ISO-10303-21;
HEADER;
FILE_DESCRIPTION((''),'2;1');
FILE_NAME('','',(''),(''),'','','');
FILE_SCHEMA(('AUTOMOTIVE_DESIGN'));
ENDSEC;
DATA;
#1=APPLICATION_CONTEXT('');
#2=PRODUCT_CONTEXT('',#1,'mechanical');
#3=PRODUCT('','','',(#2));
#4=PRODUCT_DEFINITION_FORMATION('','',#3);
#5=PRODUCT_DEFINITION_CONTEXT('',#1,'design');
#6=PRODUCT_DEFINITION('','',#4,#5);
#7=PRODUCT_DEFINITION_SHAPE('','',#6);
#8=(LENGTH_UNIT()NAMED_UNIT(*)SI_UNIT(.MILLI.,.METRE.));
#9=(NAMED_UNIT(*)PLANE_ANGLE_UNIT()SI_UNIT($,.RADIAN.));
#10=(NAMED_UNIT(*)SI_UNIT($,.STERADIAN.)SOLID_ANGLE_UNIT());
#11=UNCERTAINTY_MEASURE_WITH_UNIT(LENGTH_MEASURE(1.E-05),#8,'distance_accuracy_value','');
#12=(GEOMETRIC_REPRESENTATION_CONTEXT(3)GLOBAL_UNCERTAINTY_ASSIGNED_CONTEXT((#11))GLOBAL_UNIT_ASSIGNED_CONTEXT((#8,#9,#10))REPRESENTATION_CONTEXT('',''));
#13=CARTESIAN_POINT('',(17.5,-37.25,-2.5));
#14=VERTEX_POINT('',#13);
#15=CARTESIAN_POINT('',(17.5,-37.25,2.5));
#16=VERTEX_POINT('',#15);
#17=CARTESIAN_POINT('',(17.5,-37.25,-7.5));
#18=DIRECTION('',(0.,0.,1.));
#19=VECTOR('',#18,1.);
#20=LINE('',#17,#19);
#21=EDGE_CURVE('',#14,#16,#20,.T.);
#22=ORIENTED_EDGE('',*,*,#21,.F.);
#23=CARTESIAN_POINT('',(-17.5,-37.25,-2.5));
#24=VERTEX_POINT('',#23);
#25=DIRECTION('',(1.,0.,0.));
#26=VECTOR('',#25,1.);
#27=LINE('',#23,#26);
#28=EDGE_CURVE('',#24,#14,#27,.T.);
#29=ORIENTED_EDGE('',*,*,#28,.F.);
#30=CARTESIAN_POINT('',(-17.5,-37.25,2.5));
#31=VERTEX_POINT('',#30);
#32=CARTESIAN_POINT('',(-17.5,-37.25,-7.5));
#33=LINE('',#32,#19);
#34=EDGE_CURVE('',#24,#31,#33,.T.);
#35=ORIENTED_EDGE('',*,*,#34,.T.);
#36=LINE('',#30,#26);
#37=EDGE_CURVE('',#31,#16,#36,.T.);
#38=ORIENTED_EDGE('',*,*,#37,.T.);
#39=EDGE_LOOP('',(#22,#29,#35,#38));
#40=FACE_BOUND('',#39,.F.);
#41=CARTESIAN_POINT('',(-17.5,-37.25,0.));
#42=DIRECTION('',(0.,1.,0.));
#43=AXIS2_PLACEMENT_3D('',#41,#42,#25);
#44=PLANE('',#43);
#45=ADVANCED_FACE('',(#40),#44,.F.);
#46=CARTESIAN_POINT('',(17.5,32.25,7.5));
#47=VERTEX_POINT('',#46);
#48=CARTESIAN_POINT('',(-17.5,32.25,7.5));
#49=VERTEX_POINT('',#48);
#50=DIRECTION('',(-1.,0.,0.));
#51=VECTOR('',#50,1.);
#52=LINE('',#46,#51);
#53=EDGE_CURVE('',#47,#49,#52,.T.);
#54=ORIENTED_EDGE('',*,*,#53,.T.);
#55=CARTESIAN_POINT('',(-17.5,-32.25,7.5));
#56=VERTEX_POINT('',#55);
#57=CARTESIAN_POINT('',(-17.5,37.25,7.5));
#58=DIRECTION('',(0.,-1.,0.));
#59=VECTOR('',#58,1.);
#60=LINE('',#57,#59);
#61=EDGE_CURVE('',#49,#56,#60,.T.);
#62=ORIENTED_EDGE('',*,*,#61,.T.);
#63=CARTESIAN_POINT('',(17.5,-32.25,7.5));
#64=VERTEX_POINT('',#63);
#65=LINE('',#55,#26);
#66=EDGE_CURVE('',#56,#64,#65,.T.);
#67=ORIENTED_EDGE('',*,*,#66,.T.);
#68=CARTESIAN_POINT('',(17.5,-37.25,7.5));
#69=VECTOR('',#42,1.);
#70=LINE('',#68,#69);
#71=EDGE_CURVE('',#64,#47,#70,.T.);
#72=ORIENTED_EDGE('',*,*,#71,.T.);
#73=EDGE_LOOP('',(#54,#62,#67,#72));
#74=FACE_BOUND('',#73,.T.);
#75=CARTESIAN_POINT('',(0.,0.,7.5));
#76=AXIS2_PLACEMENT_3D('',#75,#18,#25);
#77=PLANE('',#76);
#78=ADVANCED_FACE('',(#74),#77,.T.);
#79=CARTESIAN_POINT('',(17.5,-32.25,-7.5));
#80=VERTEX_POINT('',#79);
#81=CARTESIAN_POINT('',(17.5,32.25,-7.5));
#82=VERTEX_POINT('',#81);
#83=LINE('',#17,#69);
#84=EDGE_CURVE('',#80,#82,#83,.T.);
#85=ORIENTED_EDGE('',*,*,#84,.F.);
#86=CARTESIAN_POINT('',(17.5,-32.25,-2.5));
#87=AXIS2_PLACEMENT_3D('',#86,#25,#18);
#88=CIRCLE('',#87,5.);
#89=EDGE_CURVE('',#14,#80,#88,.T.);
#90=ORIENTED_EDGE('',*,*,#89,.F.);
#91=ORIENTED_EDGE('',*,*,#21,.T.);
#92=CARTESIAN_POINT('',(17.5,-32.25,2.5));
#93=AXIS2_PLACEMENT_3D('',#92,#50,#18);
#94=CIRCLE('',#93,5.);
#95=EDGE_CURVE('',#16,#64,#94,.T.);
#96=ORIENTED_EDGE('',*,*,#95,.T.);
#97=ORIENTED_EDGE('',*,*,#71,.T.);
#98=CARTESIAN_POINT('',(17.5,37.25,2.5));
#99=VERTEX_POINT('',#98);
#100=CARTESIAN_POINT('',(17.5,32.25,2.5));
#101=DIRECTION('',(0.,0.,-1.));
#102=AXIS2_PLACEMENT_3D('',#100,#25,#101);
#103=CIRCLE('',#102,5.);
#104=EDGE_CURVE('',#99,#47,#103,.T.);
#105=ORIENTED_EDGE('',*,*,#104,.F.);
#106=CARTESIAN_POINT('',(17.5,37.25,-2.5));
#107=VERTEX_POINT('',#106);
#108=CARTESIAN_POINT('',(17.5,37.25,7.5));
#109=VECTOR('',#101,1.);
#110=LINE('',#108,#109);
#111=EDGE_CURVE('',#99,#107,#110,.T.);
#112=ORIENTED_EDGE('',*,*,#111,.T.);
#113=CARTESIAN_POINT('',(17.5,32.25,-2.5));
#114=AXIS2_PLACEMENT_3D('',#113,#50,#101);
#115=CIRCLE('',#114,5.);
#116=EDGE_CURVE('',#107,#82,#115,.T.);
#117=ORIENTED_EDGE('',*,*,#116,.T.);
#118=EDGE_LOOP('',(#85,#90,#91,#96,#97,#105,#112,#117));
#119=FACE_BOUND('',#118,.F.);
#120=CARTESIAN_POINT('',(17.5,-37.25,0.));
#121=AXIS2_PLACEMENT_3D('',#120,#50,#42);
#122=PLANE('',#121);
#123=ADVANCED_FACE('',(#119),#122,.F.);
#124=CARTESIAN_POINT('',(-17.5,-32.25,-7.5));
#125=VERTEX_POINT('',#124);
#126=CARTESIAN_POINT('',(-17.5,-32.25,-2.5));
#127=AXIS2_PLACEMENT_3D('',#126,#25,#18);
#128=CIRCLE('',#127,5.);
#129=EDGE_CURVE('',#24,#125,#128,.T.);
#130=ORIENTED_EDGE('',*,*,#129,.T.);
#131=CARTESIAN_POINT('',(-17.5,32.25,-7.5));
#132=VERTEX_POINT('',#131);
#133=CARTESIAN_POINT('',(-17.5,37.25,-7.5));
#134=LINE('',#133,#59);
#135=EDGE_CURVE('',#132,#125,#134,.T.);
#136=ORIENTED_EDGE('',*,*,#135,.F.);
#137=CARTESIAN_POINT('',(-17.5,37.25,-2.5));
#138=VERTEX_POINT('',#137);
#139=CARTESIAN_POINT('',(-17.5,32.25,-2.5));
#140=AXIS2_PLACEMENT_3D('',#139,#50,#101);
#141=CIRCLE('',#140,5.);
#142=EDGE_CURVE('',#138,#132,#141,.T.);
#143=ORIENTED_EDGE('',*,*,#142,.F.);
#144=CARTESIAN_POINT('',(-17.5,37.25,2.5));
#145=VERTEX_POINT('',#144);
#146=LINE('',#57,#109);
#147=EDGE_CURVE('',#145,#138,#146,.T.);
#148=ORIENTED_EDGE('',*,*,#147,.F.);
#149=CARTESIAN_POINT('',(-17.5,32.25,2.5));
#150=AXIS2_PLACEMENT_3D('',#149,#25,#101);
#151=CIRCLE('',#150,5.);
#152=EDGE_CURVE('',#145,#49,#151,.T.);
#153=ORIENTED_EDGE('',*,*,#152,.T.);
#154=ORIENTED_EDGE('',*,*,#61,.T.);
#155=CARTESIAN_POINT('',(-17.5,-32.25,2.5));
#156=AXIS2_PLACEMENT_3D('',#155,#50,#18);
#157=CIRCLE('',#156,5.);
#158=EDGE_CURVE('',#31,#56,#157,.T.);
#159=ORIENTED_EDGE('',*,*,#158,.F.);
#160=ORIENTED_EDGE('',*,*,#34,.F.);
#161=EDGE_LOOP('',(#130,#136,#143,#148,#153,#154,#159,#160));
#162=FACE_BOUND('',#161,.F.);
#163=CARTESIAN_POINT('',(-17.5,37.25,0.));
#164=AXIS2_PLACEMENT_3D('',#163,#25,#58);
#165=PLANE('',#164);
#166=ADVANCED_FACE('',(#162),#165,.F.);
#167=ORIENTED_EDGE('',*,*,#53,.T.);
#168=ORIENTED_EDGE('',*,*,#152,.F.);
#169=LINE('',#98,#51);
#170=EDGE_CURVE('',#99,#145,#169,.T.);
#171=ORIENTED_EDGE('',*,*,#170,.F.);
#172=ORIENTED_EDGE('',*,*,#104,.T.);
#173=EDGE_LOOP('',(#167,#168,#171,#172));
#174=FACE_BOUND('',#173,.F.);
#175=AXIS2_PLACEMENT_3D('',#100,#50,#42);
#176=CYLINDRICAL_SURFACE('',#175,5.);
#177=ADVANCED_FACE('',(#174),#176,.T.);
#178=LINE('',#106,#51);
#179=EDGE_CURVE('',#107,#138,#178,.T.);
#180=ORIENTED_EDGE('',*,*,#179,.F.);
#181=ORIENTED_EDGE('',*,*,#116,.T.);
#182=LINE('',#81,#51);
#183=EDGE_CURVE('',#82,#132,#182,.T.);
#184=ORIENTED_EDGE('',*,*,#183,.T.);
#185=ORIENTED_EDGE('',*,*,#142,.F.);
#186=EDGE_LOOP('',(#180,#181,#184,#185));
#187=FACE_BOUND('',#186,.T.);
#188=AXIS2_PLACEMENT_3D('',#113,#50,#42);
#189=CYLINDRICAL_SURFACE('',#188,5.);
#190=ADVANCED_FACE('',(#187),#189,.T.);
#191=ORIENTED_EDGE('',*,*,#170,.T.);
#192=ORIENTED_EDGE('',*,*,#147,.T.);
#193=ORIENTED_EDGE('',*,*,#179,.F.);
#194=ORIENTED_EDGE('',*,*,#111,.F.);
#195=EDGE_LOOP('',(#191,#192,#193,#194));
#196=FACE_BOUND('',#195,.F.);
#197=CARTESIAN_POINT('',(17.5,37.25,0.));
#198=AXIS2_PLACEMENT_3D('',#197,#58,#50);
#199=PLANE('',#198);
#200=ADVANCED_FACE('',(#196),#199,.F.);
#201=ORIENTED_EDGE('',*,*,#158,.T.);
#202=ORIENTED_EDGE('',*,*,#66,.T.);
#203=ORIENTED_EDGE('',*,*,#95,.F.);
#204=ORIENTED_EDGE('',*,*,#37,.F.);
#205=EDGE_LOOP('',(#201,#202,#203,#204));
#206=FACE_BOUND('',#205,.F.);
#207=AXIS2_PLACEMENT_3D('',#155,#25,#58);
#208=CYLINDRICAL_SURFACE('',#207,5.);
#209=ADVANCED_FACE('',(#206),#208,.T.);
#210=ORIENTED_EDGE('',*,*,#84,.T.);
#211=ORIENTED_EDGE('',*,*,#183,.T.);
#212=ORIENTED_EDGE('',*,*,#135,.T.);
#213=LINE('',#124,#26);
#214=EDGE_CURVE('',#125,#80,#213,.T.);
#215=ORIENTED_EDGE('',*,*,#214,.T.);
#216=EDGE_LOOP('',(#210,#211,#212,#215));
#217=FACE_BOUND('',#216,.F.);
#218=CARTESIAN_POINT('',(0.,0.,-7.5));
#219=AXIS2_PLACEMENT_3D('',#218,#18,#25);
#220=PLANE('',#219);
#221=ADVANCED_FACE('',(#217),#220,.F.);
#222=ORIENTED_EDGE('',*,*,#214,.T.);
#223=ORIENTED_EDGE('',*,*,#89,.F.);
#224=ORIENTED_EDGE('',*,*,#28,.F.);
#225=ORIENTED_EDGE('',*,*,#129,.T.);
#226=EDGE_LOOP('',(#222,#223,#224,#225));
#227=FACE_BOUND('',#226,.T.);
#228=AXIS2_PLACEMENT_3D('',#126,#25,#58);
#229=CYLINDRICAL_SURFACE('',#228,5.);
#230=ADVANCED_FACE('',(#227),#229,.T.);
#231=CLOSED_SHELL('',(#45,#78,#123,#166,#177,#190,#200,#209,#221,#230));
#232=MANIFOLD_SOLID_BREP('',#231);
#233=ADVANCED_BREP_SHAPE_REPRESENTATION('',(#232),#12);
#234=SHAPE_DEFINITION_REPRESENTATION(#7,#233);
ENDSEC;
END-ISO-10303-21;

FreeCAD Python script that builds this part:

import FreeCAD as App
import Part
import Sketcher

V = App.Vector
Q = App.Units.Quantity


def edges_at(feature, points):
    """Names of the edges that pass closest to the given points."""
    edges = feature.Shape.Edges
    near = lambda p: min(range(len(edges)), key=lambda i: edges[i].distToShape(Part.Vertex(*p))[0])
    return sorted({f"Edge{near(p) + 1}" for p in points})

doc = App.newDocument("Part")
body = doc.addObject("PartDesign::Body", "Body")

sketch1 = body.newObject("Sketcher::SketchObject", "Sketch")
sketch1.AttachmentSupport = (doc.getObject("XY_Plane"), [""])
sketch1.MapMode = "FlatFace"
sketch1.addGeometry([
    Part.LineSegment(V(-17.5, 37.25, 0), V(-17.5, -37.25, 0)),
    Part.LineSegment(V(-17.5, -37.25, 0), V(17.5, -37.25, 0)),
    Part.LineSegment(V(17.5, -37.25, 0), V(17.5, 37.25, 0)),
    Part.LineSegment(V(17.5, 37.25, 0), V(-17.5, 37.25, 0)),
], False)
sketch1.addConstraint([
    Sketcher.Constraint("Coincident", 0, 2, 1, 1),
    Sketcher.Constraint("Coincident", 1, 2, 2, 1),
    Sketcher.Constraint("Coincident", 2, 2, 3, 1),
    Sketcher.Constraint("Coincident", 3, 2, 0, 1),
    Sketcher.Constraint("Vertical", 0),
    Sketcher.Constraint("Horizontal", 1),
    Sketcher.Constraint("Vertical", 2),
    Sketcher.Constraint("Horizontal", 3),
    Sketcher.Constraint("Symmetric", 0, 2, 2, 2, -1, 1),
    Sketcher.Constraint("DistanceX", 1, 1, 1, 2, Q("35 mm")),
    Sketcher.Constraint("DistanceY", 0, 2, 0, 1, Q("74.5 mm")),
])
pad1 = body.newObject("PartDesign::Pad", "Pad")
pad1.Profile = sketch1
pad1.Length = 15
pad1.Midplane = True
doc.recompute()

fillet = body.newObject("PartDesign::Fillet", "Fillet")
fillet.Base = (pad1, edges_at(pad1, [
    (0, 37.25, -7.5),
    (0, 37.25, 7.5),
    (0, -37.25, -7.5),
    (0, -37.25, 7.5),
]))
fillet.Radius = 5

doc.recompute()
